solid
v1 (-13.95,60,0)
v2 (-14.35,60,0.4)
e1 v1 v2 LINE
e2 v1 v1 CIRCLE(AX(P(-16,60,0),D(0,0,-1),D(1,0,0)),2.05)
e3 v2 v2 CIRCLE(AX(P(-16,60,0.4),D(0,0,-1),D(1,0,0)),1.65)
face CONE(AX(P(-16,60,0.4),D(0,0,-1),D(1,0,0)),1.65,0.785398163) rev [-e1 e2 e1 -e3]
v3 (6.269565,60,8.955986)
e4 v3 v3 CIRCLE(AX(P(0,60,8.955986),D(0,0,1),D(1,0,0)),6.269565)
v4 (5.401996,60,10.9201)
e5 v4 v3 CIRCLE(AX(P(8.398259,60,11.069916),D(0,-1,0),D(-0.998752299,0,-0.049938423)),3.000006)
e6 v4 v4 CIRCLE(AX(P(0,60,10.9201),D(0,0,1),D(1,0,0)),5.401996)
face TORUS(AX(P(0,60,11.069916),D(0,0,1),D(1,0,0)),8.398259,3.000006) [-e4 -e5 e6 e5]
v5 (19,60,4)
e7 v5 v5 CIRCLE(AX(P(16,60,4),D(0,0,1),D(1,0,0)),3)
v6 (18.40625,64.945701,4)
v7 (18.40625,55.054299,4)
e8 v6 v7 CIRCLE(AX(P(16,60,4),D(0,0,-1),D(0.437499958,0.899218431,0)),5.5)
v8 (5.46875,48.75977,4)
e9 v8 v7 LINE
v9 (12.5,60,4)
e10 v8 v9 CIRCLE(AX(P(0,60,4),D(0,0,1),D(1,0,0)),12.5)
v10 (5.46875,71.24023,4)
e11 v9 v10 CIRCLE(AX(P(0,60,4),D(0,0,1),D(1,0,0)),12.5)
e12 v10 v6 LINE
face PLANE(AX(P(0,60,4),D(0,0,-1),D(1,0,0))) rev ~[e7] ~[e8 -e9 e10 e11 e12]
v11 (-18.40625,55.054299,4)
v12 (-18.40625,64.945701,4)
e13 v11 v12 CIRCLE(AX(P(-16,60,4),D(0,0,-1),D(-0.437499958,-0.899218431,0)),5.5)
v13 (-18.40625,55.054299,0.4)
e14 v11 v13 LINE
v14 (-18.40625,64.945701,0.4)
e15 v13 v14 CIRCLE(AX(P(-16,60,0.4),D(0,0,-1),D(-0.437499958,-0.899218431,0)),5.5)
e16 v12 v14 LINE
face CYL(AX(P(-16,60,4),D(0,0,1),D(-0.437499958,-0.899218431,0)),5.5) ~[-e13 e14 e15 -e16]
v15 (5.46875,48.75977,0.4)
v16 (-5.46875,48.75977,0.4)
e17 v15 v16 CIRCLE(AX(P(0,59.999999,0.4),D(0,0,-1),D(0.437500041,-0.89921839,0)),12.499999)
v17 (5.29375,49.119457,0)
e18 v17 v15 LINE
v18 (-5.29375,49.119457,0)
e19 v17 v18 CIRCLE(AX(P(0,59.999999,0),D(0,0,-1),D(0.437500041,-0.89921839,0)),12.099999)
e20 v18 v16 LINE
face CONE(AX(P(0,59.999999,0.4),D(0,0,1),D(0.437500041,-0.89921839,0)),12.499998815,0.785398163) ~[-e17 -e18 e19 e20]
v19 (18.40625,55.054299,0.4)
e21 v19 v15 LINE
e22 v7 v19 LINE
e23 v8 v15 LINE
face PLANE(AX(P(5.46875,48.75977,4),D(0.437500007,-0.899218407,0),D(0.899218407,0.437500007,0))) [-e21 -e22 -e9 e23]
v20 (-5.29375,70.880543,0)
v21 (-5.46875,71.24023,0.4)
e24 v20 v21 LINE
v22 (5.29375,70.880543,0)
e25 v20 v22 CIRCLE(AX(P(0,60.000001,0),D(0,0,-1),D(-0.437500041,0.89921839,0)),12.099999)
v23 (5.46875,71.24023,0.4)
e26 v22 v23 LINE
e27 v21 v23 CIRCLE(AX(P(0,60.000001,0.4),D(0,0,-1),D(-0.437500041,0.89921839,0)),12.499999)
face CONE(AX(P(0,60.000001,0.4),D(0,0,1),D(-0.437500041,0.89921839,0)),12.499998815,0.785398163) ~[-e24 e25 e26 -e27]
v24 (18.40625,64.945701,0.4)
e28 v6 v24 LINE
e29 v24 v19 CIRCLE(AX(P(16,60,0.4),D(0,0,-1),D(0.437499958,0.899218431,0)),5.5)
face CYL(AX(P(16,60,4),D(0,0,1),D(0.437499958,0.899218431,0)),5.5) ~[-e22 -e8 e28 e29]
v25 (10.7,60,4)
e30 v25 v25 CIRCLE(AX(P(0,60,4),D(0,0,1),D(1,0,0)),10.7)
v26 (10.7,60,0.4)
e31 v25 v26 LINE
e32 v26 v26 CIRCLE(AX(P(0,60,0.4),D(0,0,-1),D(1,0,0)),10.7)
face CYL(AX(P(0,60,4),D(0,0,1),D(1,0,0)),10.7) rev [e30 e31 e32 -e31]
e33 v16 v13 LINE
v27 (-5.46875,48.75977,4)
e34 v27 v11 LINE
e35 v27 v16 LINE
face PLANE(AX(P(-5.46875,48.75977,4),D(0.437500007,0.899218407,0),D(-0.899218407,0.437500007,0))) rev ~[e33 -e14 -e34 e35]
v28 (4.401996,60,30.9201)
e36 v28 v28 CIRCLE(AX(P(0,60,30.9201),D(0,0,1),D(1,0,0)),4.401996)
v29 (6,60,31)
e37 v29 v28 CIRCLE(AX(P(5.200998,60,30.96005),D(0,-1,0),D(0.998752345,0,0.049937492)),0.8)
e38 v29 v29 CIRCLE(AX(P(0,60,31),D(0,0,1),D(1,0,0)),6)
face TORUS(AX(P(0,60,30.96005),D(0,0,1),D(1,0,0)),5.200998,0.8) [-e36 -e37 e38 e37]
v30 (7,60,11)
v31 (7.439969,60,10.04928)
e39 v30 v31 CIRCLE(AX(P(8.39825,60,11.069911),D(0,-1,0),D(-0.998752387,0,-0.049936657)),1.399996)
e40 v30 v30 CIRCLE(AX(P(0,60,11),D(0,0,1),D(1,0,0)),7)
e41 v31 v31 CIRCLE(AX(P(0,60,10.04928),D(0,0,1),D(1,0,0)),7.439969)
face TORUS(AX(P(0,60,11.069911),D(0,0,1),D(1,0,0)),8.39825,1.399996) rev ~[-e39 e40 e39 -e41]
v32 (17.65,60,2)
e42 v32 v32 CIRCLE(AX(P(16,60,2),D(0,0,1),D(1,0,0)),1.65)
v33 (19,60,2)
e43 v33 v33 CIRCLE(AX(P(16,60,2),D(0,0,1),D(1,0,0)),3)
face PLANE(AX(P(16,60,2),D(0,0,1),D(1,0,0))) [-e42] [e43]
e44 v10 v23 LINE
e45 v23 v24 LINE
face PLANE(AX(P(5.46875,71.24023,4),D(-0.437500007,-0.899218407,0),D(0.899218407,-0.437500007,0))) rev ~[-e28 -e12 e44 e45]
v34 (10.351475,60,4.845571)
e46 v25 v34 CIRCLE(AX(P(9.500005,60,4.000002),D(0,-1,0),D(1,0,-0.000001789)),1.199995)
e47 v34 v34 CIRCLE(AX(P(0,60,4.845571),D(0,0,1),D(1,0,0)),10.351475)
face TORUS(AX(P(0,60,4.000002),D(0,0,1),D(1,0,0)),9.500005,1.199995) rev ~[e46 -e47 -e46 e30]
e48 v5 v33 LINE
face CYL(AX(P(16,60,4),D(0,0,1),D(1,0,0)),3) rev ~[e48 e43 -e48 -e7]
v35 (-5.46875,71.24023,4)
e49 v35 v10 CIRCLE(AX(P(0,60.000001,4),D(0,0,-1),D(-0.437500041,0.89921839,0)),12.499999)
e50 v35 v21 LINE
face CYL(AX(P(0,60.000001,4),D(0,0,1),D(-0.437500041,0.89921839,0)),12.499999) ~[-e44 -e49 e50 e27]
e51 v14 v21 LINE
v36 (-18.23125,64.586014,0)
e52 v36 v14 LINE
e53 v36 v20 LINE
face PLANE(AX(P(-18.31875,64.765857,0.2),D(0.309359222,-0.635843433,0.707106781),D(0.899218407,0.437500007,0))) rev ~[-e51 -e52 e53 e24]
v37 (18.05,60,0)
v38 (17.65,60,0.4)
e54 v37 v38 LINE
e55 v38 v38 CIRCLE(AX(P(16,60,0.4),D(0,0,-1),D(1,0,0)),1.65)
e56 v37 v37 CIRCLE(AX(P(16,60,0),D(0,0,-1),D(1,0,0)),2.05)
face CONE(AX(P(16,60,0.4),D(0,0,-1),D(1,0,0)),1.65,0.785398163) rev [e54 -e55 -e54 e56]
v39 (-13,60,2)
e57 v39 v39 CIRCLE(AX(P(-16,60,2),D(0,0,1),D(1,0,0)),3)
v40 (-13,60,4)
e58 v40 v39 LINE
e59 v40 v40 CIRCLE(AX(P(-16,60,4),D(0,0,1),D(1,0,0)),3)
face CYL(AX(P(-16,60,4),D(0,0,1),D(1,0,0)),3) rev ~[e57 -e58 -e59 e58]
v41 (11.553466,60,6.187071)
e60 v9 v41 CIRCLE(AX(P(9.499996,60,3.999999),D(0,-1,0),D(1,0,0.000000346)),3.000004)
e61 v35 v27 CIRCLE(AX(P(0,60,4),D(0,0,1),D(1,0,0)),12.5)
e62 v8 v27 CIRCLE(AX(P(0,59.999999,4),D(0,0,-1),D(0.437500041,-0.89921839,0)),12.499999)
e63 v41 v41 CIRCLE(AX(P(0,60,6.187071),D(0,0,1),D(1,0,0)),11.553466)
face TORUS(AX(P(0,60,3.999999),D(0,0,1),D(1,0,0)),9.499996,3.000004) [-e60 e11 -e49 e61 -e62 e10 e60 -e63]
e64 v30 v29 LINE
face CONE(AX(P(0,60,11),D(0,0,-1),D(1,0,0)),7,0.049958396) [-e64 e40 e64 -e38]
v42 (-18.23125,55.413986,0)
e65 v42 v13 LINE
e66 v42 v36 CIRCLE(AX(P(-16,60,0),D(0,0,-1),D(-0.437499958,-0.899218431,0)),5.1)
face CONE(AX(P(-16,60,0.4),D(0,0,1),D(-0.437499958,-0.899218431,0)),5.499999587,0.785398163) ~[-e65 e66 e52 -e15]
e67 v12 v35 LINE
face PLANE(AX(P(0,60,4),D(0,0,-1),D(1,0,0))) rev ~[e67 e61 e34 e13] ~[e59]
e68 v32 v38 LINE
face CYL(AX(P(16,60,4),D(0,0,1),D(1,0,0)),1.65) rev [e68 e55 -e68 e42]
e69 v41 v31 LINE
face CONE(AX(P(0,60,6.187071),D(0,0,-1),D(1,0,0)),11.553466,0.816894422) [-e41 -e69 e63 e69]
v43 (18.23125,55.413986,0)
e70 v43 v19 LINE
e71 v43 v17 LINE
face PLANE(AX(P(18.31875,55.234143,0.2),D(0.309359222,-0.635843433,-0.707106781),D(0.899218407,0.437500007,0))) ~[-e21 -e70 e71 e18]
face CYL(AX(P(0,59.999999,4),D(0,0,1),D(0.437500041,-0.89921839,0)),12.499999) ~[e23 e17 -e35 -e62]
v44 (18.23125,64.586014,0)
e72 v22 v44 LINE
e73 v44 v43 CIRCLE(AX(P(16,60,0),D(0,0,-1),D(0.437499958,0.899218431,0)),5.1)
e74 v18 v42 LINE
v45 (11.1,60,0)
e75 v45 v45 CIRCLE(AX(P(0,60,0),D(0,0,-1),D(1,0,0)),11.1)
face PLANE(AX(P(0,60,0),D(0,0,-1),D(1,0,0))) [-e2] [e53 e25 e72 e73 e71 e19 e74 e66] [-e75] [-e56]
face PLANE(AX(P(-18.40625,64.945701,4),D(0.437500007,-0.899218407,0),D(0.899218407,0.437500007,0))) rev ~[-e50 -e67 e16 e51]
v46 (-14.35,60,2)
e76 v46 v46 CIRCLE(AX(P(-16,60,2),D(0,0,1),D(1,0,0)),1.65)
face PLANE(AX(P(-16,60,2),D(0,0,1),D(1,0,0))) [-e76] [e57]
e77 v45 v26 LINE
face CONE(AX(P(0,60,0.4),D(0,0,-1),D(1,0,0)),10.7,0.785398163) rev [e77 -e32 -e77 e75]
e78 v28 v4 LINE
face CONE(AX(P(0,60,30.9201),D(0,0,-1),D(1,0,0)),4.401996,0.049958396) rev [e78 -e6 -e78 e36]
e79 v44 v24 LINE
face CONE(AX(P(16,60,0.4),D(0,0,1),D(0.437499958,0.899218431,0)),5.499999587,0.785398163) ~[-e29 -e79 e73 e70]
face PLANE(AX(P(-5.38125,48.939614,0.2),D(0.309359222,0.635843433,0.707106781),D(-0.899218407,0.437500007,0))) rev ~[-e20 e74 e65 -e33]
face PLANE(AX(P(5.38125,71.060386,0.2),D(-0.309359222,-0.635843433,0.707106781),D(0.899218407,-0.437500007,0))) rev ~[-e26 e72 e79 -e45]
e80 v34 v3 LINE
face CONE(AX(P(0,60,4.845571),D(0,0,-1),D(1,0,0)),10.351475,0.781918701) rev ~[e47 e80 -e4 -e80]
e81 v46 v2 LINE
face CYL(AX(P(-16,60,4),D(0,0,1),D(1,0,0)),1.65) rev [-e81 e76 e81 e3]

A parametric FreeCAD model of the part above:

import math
import FreeCAD as App
import Part
import Sketcher


def edges_at(feature, points):
    """Names of the edges that pass closest to the given points."""
    edges = feature.Shape.Edges
    near = lambda p: min(range(len(edges)), key=lambda i: edges[i].distToShape(Part.Vertex(*p))[0])
    return sorted({f"Edge{near(p) + 1}" for p in points})

doc = App.newDocument("Part")
body = doc.addObject("PartDesign::Body", "Body")

sketch1 = doc.addObject("Sketcher::SketchObject", "Sketch")
body.addObject(sketch1)
sketch1.AttachmentSupport = (doc.XZ_Plane, [""])
sketch1.MapMode = "FlatFace"
sketch1.addGeometry([
    Part.LineSegment(App.Vector(7, 11, 0), App.Vector(6, 31, 0)),
    Part.ArcOfCircle(Part.Circle(App.Vector(5.2, 31, 0), App.Vector(0, 0, 1), 0.8), math.radians(3), math.radians(183)),
    Part.LineSegment(App.Vector(4.4, 30.9, 0), App.Vector(5.4, 10.9, 0)),
    Part.ArcOfCircle(Part.Circle(App.Vector(8.4, 11.1, 0), App.Vector(0, 0, 1), 3), math.radians(-177), math.radians(-135)),
    Part.LineSegment(App.Vector(6.3, 9, 0), App.Vector(10.4, 4.8, 0)),
    Part.ArcOfCircle(Part.Circle(App.Vector(9.5, 4, 0), App.Vector(0, 0, 1), 1.2), math.radians(0), math.radians(45)),
    Part.LineSegment(App.Vector(10.7, 4, 0), App.Vector(12.5, 4, 0)),
    Part.ArcOfCircle(Part.Circle(App.Vector(9.5, 4, 0), App.Vector(0, 0, 1), 3), math.radians(0), math.radians(47)),
    Part.LineSegment(App.Vector(11.6, 6.2, 0), App.Vector(7.4, 10, 0)),
    Part.ArcOfCircle(Part.Circle(App.Vector(8.4, 11.1, 0), App.Vector(0, 0, 1), 1.4), math.radians(-177), math.radians(-133)),
], False)
sketch1.addConstraint([
    Sketcher.Constraint("Tangent", 0, 2, 1, 1),
    Sketcher.Constraint("Tangent", 1, 2, 2, 1),
    Sketcher.Constraint("Tangent", 2, 2, 3, 1),
    Sketcher.Constraint("Tangent", 3, 2, 4, 1),
    Sketcher.Constraint("Coincident", 4, 2, 5, 2),
    Sketcher.Constraint("Coincident", 5, 1, 6, 1),
    Sketcher.Constraint("Coincident", 6, 2, 7, 1),
    Sketcher.Constraint("Tangent", 7, 2, 8, 1),
    Sketcher.Constraint("Tangent", 8, 2, 9, 2),
    Sketcher.Constraint("Tangent", 9, 1, 0, 1),
    Sketcher.Constraint("Horizontal", 6),
    Sketcher.Constraint("Coincident", 7, 3, 5, 3),
    Sketcher.Constraint("Parallel", 0, 2),
    Sketcher.Constraint("Horizontal", 7, 3, 5, 1),
    Sketcher.Constraint("Equal", 0, 2),
    Sketcher.Constraint("Radius", 1, 0.8),
    Sketcher.Constraint("DistanceX", 6, 1, 6, 2, 1.8),
    Sketcher.Constraint("DistanceY", -1, 1, 7, 3, 3.999999),
    Sketcher.Constraint("DistanceX", -1, 1, 0, 2, 6.0),
    Sketcher.Constraint("DistanceY", -1, 1, 0, 2, 31.0),
    Sketcher.Constraint("DistanceX", -1, 1, 9, 1, 7.0),
    Sketcher.Constraint("DistanceY", -1, 1, 9, 1, 11.0),
    Sketcher.Constraint("DistanceX", -1, 1, 5, 1, 10.7),
    Sketcher.Constraint("Radius", 3, 3.000006),
    Sketcher.Constraint("Radius", 5, 1.199995),
    Sketcher.Constraint("Radius", 9, 1.399996),
    Sketcher.Constraint("DistanceY", 4, 2, 7, 2, 1.3415),
])
revolution = doc.addObject("PartDesign::Revolution", "Revolution")
body.addObject(revolution)
revolution.Profile = sketch1
revolution.ReferenceAxis = (sketch1, ["V_Axis"])
revolution.Angle = 360

sketch2 = doc.addObject("Sketcher::SketchObject", "Sketch001")
body.addObject(sketch2)
sketch2.AttachmentSupport = (doc.XY_Plane, [""])
sketch2.MapMode = "FlatFace"
sketch2.AttachmentOffset = App.Placement(App.Vector(0, 0, 4), App.Rotation())
sketch2.addGeometry([
    Part.ArcOfCircle(Part.Circle(App.Vector(0, 0, 0), App.Vector(0, 0, 1), 12.5), math.radians(-116), math.radians(-64)),
    Part.LineSegment(App.Vector(-5.5, -11.2, 0), App.Vector(-18.4, -4.9, 0)),
    Part.ArcOfCircle(Part.Circle(App.Vector(-16, 0, 0), App.Vector(0, 0, 1), 5.5), math.radians(116), math.radians(244)),
    Part.LineSegment(App.Vector(-18.4, 4.9, 0), App.Vector(-5.5, 11.2, 0)),
    Part.ArcOfCircle(Part.Circle(App.Vector(0, 0, 0), App.Vector(0, 0, 1), 12.5), math.radians(64), math.radians(116)),
    Part.LineSegment(App.Vector(5.5, 11.2, 0), App.Vector(18.4, 4.9, 0)),
    Part.ArcOfCircle(Part.Circle(App.Vector(16, 0, 0), App.Vector(0, 0, 1), 5.5), math.radians(-64), math.radians(64)),
    Part.LineSegment(App.Vector(18.4, -4.9, 0), App.Vector(5.5, -11.2, 0)),
    Part.Circle(App.Vector(-16, 0, 0), App.Vector(0, 0, 1), 1.6),
    Part.Circle(App.Vector(0, 0, 0), App.Vector(0, 0, 1), 10.7),
    Part.Circle(App.Vector(16, 0, 0), App.Vector(0, 0, 1), 1.6),
], False)
sketch2.addConstraint([
    Sketcher.Constraint("Tangent", 0, 1, 1, 1),
    Sketcher.Constraint("Tangent", 1, 2, 2, 2),
    Sketcher.Constraint("Tangent", 2, 1, 3, 1),
    Sketcher.Constraint("Tangent", 3, 2, 4, 2),
    Sketcher.Constraint("Tangent", 4, 1, 5, 1),
    Sketcher.Constraint("Tangent", 5, 2, 6, 2),
    Sketcher.Constraint("Tangent", 6, 1, 7, 1),
    Sketcher.Constraint("Tangent", 7, 2, 0, 2),
    Sketcher.Constraint("Coincident", 0, 3, -1, 1),
    Sketcher.Constraint("Coincident", 4, 3, -1, 1),
    Sketcher.Constraint("Coincident", 9, 3, -1, 1),
    Sketcher.Constraint("Coincident", 8, 3, 2, 3),
    Sketcher.Constraint("Coincident", 10, 3, 6, 3),
    Sketcher.Constraint("Equal", 0, 4),
    Sketcher.Constraint("Equal", 2, 6),
    Sketcher.Constraint("Equal", 8, 10),
    Sketcher.Constraint("Symmetric", 2, 3, 6, 3, -1, 1),
    Sketcher.Constraint("PointOnObject", 2, 3, -1),
    Sketcher.Constraint("Diameter", 8, 3.3),
    Sketcher.Constraint("Diameter", 9, 21.4),
    Sketcher.Constraint("Radius", 0, 12.499999),
    Sketcher.Constraint("Radius", 2, 5.5),
    Sketcher.Constraint("DistanceX", 2, 3, -1, 1, 16.0),
])
pad1 = doc.addObject("PartDesign::Pad", "Pad")
body.addObject(pad1)
pad1.Profile = sketch2
pad1.Length = 4
pad1.Reversed = True

sketch3 = doc.addObject("Sketcher::SketchObject", "Sketch002")
body.addObject(sketch3)
sketch3.AttachmentSupport = (doc.XY_Plane, [""])
sketch3.MapMode = "FlatFace"
sketch3.AttachmentOffset = App.Placement(App.Vector(0, 0, 4), App.Rotation())
sketch3.addGeometry([
    Part.Circle(App.Vector(-16, 0, 0), App.Vector(0, 0, 1), 3),
    Part.Circle(App.Vector(16, 0, 0), App.Vector(0, 0, 1), 3),
], False)
sketch3.addConstraint([
    Sketcher.Constraint("Equal", 0, 1),
    Sketcher.Constraint("Symmetric", 0, 3, 1, 3, -1, 1),
    Sketcher.Constraint("PointOnObject", 0, 3, -1),
    Sketcher.Constraint("Diameter", 0, 6.0),
    Sketcher.Constraint("DistanceX", 0, 3, -1, 1, 16.0),
])
pocket1 = doc.addObject("PartDesign::Pocket", "Pocket")
body.addObject(pocket1)
pocket1.Profile = sketch3
pocket1.Length = 2
doc.recompute()

chamfer = doc.addObject("PartDesign::Chamfer", "Chamfer")
body.addObject(chamfer)
chamfer.Base = (pocket1, edges_at(pocket1, [
    (-10.7, 0, 0),
    (-17.65, 0, 0),
    (14.35, 0, 0),
    (-11.938, 8.093, 0),
]))
chamfer.Size = 0.4
body2 = doc.addObject("PartDesign::Body", "Body001")
doc.recompute()

body.Placement = App.Placement(App.Vector(0, 60, 0), App.Rotation(App.Vector(0, 0, 1), 0))
boolean = doc.addObject("PartDesign::Boolean", "Boolean")
body2.addObject(boolean)
boolean.Type = "Fuse"
boolean.addObjects([body])

doc.recompute()
